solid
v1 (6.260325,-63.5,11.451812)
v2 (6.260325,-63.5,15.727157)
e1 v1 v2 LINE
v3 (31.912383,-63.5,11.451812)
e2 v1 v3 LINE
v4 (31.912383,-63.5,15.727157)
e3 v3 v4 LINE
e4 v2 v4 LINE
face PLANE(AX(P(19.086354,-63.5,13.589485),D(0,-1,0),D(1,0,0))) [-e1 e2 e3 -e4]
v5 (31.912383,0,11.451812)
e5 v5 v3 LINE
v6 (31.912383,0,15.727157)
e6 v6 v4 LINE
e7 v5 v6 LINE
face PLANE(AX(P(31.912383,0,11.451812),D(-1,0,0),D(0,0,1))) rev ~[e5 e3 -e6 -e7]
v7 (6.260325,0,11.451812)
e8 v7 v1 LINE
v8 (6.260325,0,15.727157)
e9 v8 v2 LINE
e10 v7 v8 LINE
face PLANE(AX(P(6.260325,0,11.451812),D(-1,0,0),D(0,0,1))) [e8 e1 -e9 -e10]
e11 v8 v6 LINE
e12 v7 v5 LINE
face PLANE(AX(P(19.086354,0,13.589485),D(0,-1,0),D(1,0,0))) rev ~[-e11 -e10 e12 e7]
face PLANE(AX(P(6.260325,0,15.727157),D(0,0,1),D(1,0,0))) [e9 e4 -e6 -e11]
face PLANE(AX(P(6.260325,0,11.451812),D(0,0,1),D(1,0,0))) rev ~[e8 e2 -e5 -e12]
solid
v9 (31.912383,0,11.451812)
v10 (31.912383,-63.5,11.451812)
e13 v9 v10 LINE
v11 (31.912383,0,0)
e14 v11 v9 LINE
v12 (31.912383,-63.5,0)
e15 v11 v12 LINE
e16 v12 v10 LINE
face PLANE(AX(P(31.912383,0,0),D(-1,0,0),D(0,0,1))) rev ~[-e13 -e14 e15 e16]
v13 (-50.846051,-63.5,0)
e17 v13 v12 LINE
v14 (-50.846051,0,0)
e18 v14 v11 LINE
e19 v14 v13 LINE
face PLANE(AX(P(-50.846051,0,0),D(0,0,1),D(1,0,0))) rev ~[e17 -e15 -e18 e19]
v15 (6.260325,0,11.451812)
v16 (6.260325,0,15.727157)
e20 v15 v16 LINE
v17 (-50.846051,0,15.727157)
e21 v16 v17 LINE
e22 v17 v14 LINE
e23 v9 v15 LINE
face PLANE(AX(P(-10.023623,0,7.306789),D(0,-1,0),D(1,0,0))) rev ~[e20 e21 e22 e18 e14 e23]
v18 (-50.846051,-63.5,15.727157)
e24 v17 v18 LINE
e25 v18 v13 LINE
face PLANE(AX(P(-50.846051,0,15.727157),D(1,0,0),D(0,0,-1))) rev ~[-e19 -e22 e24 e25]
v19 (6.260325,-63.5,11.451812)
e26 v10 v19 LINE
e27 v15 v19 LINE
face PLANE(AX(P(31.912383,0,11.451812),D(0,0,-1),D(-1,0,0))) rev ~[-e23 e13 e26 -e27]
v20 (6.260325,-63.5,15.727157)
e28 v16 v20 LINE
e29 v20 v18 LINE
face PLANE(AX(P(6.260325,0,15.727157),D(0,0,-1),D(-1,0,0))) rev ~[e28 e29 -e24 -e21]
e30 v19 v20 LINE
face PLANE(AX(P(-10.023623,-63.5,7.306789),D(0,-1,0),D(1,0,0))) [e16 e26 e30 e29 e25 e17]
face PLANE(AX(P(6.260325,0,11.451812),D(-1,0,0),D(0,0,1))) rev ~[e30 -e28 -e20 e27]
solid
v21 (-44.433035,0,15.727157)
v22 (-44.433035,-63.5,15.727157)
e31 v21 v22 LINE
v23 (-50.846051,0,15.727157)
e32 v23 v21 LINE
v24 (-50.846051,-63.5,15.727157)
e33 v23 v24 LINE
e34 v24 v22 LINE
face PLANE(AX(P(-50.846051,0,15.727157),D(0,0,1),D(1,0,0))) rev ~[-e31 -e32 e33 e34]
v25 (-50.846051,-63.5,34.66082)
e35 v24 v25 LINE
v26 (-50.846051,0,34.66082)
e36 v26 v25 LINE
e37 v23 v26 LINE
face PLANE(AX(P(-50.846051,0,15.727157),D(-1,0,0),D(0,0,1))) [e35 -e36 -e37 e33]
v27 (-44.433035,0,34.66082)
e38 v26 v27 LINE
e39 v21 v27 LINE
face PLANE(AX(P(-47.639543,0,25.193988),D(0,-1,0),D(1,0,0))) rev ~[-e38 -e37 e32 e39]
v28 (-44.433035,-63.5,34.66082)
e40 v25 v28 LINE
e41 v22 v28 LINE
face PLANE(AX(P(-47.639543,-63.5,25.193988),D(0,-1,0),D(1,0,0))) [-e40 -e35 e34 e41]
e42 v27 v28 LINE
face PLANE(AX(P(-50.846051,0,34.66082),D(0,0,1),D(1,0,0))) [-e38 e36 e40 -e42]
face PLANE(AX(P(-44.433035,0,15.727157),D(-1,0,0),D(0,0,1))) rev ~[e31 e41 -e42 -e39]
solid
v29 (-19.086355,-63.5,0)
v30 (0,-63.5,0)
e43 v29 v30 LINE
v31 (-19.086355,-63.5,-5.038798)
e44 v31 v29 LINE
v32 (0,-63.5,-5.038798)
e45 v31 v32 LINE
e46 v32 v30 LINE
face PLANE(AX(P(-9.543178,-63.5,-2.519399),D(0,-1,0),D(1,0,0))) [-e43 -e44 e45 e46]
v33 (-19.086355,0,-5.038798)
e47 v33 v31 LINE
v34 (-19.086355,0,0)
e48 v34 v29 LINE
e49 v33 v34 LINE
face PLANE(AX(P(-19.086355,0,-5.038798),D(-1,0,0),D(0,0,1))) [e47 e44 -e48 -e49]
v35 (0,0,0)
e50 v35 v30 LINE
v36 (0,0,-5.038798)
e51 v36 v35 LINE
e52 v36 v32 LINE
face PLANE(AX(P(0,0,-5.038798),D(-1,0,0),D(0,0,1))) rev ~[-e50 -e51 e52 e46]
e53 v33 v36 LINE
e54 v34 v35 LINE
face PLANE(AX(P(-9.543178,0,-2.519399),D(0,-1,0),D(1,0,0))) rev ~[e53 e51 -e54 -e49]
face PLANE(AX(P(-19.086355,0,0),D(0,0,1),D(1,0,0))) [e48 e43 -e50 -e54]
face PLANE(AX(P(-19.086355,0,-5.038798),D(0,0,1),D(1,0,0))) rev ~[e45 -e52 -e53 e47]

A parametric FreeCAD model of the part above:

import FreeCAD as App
import Part
import Sketcher

doc = App.newDocument("Part")
params = doc.addObject("Spreadsheet::Sheet", "Params")
for row, (alias, value) in enumerate([
    ("pad1_length", "2.5 in"),
    ("pad2_length", "2.5 in"),
    ("pad3_length", "2.5 in"),
    ("pad4_length", "2.5 in"),
], start=1):
    params.set(f"A{row}", alias)
    params.set(f"B{row}", "=" + value)
    params.setAlias(f"B{row}", alias)

body = doc.addObject("PartDesign::Body", "Body")

# Sketch on XZ plane
sketch1 = body.newObject("Sketcher::SketchObject", "Sketch")
sketch1.AttachmentSupport = (doc.getObject("XZ_Plane"), [""])
sketch1.MapMode = "FlatFace"
sketch1.addGeometry(Part.LineSegment(App.Vector(-19, 0, 0), App.Vector(-19, -5, 0)), False)
sketch1.addGeometry(Part.LineSegment(App.Vector(-19, -5, 0), App.Vector(0, -5, 0)), False)
sketch1.addGeometry(Part.LineSegment(App.Vector(0, -5, 0), App.Vector(0, 0, 0)), False)
sketch1.addGeometry(Part.LineSegment(App.Vector(0, 0, 0), App.Vector(-19, 0, 0)), False)
sketch1.addConstraint(Sketcher.Constraint("Coincident", 0, 2, 1, 1))
sketch1.addConstraint(Sketcher.Constraint("Coincident", 1, 2, 2, 1))
sketch1.addConstraint(Sketcher.Constraint("Coincident", 2, 2, 3, 1))
sketch1.addConstraint(Sketcher.Constraint("Coincident", 3, 2, 0, 1))
sketch1.addConstraint(Sketcher.Constraint("Vertical", 0))
sketch1.addConstraint(Sketcher.Constraint("Horizontal", 1))
sketch1.addConstraint(Sketcher.Constraint("Vertical", 2))
sketch1.addConstraint(Sketcher.Constraint("Horizontal", 3))
sketch1.addConstraint(Sketcher.Constraint("Coincident", 2, 2, -1, 1))
sketch1.addConstraint(Sketcher.Constraint("DistanceX", 1, 1, 1, 2, 19.086355))
sketch1.addConstraint(Sketcher.Constraint("DistanceY", 0, 2, 0, 1, 5.038798))
pad1 = body.newObject("PartDesign::Pad", "Pad")
pad1.Profile = sketch1
pad1.setExpression("Length", "Params.pad1_length")
body2 = doc.addObject("PartDesign::Body", "Body001")

# Sketch on XZ plane
sketch2 = body2.newObject("Sketcher::SketchObject", "Sketch001")
sketch2.AttachmentSupport = (doc.getObject("XZ_Plane001"), [""])
sketch2.MapMode = "FlatFace"
sketch2.addGeometry(Part.LineSegment(App.Vector(-51, 35, 0), App.Vector(-51, 16, 0)), False)
sketch2.addGeometry(Part.LineSegment(App.Vector(-51, 16, 0), App.Vector(-44, 16, 0)), False)
sketch2.addGeometry(Part.LineSegment(App.Vector(-44, 16, 0), App.Vector(-44, 35, 0)), False)
sketch2.addGeometry(Part.LineSegment(App.Vector(-44, 35, 0), App.Vector(-51, 35, 0)), False)
sketch2.addConstraint(Sketcher.Constraint("Coincident", 0, 2, 1, 1))
sketch2.addConstraint(Sketcher.Constraint("Coincident", 1, 2, 2, 1))
sketch2.addConstraint(Sketcher.Constraint("Coincident", 2, 2, 3, 1))
sketch2.addConstraint(Sketcher.Constraint("Coincident", 3, 2, 0, 1))
sketch2.addConstraint(Sketcher.Constraint("Vertical", 0))
sketch2.addConstraint(Sketcher.Constraint("Horizontal", 1))
sketch2.addConstraint(Sketcher.Constraint("Vertical", 2))
sketch2.addConstraint(Sketcher.Constraint("Horizontal", 3))
sketch2.addConstraint(Sketcher.Constraint("DistanceX", 1, 1, 1, 2, 6.413016))
sketch2.addConstraint(Sketcher.Constraint("DistanceY", 0, 2, 0, 1, 18.933663))
sketch2.addConstraint(Sketcher.Constraint("DistanceX", 0, 2, -1, 1, 50.846051))
sketch2.addConstraint(Sketcher.Constraint("DistanceY", -1, 1, 2, 2, 34.66082))
pad2 = body2.newObject("PartDesign::Pad", "Pad001")
pad2.Profile = sketch2
pad2.setExpression("Length", "Params.pad2_length")
body3 = doc.addObject("PartDesign::Body", "Body002")

# Sketch on XZ plane
sketch3 = body3.newObject("Sketcher::SketchObject", "Sketch002")
sketch3.AttachmentSupport = (doc.getObject("XZ_Plane002"), [""])
sketch3.MapMode = "FlatFace"
sketch3.addGeometry(Part.LineSegment(App.Vector(31.9, 0, 0), App.Vector(31.9, 11.5, 0)), False)
sketch3.addGeometry(Part.LineSegment(App.Vector(31.9, 11.5, 0), App.Vector(6.3, 11.5, 0)), False)
sketch3.addGeometry(Part.LineSegment(App.Vector(6.3, 11.5, 0), App.Vector(6.3, 15.7, 0)), False)
sketch3.addGeometry(Part.LineSegment(App.Vector(6.3, 15.7, 0), App.Vector(-50.8, 15.7, 0)), False)
sketch3.addGeometry(Part.LineSegment(App.Vector(-50.8, 15.7, 0), App.Vector(-50.8, 0, 0)), False)
sketch3.addGeometry(Part.LineSegment(App.Vector(-50.8, 0, 0), App.Vector(31.9, 0, 0)), False)
sketch3.addConstraint(Sketcher.Constraint("Coincident", 0, 2, 1, 1))
sketch3.addConstraint(Sketcher.Constraint("Coincident", 1, 2, 2, 1))
sketch3.addConstraint(Sketcher.Constraint("Coincident", 2, 2, 3, 1))
sketch3.addConstraint(Sketcher.Constraint("Coincident", 3, 2, 4, 1))
sketch3.addConstraint(Sketcher.Constraint("Coincident", 4, 2, 5, 1))
sketch3.addConstraint(Sketcher.Constraint("Coincident", 5, 2, 0, 1))
sketch3.addConstraint(Sketcher.Constraint("Vertical", 0))
sketch3.addConstraint(Sketcher.Constraint("Horizontal", 1))
sketch3.addConstraint(Sketcher.Constraint("Vertical", 2))
sketch3.addConstraint(Sketcher.Constraint("Horizontal", 3))
sketch3.addConstraint(Sketcher.Constraint("Vertical", 4))
sketch3.addConstraint(Sketcher.Constraint("Horizontal", 5))
sketch3.addConstraint(Sketcher.Constraint("PointOnObject", 4, 2, -1))
sketch3.addConstraint(Sketcher.Constraint("DistanceX", 1, 2, 1, 1, 25.652058))
sketch3.addConstraint(Sketcher.Constraint("DistanceX", 3, 2, 3, 1, 57.106376))
sketch3.addConstraint(Sketcher.Constraint("DistanceY", 0, 1, 0, 2, 11.451812))
sketch3.addConstraint(Sketcher.Constraint("DistanceY", 2, 1, 2, 2, 4.275344))
sketch3.addConstraint(Sketcher.Constraint("DistanceX", 3, 2, -1, 1, 50.846051))
pad3 = body3.newObject("PartDesign::Pad", "Pad002")
pad3.Profile = sketch3
pad3.setExpression("Length", "Params.pad3_length")
body4 = doc.addObject("PartDesign::Body", "Body003")

# Sketch on XZ plane
sketch4 = body4.newObject("Sketcher::SketchObject", "Sketch003")
sketch4.AttachmentSupport = (doc.getObject("XZ_Plane003"), [""])
sketch4.MapMode = "FlatFace"
sketch4.addGeometry(Part.LineSegment(App.Vector(6.3, 15.7, 0), App.Vector(6.3, 11.5, 0)), False)
sketch4.addGeometry(Part.LineSegment(App.Vector(6.3, 11.5, 0), App.Vector(31.9, 11.5, 0)), False)
sketch4.addGeometry(Part.LineSegment(App.Vector(31.9, 11.5, 0), App.Vector(31.9, 15.7, 0)), False)
sketch4.addGeometry(Part.LineSegment(App.Vector(31.9, 15.7, 0), App.Vector(6.3, 15.7, 0)), False)
sketch4.addConstraint(Sketcher.Constraint("Coincident", 0, 2, 1, 1))
sketch4.addConstraint(Sketcher.Constraint("Coincident", 1, 2, 2, 1))
sketch4.addConstraint(Sketcher.Constraint("Coincident", 2, 2, 3, 1))
sketch4.addConstraint(Sketcher.Constraint("Coincident", 3, 2, 0, 1))
sketch4.addConstraint(Sketcher.Constraint("Vertical", 0))
sketch4.addConstraint(Sketcher.Constraint("Horizontal", 1))
sketch4.addConstraint(Sketcher.Constraint("Vertical", 2))
sketch4.addConstraint(Sketcher.Constraint("Horizontal", 3))
sketch4.addConstraint(Sketcher.Constraint("DistanceX", 1, 1, 1, 2, 25.652058))
sketch4.addConstraint(Sketcher.Constraint("DistanceY", 0, 2, 0, 1, 4.275344))
sketch4.addConstraint(Sketcher.Constraint("DistanceX", -1, 1, 0, 2, 6.260325))
sketch4.addConstraint(Sketcher.Constraint("DistanceY", -1, 1, 0, 2, 11.451812))
pad4 = body4.newObject("PartDesign::Pad", "Pad003")
pad4.Profile = sketch4
pad4.setExpression("Length", "Params.pad4_length")

doc.recompute()
